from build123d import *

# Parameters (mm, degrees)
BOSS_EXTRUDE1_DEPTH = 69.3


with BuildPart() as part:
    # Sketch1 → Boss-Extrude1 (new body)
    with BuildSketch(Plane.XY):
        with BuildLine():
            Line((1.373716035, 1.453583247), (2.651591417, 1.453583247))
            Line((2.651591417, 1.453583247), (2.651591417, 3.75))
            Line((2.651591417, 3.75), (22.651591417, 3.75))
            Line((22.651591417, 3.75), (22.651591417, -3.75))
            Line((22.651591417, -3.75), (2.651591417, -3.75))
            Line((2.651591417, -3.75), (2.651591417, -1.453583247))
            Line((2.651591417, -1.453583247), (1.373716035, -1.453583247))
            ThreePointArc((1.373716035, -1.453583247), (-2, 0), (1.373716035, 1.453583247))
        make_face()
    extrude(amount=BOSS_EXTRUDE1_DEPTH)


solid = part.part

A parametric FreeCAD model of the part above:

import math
import FreeCAD as App
import Part
import Sketcher
from FreeCAD import Vector

doc = App.newDocument("Part")
body = doc.addObject("PartDesign::Body", "Body")

# Sketch on XY plane
sketch1 = body.newObject("Sketcher::SketchObject", "Sketch")
sketch1.AttachmentSupport = (doc.getObject("XY_Plane"), [""])
sketch1.MapMode = "FlatFace"
sketch1.addGeometry(Part.LineSegment(Vector(2.7, 1.5, 0), Vector(1.4, 1.5, 0)), False)
sketch1.addGeometry(Part.ArcOfCircle(Part.Circle(Vector(0, 0, 0), Vector(0, 0, 1), 2), math.radians(47), math.radians(313)), False)
sketch1.addGeometry(Part.LineSegment(Vector(1.4, -1.5, 0), Vector(2.7, -1.5, 0)), False)
sketch1.addGeometry(Part.LineSegment(Vector(2.7, -1.5, 0), Vector(2.7, -3.8, 0)), False)
sketch1.addGeometry(Part.LineSegment(Vector(2.7, -3.8, 0), Vector(22.7, -3.8, 0)), False)
sketch1.addGeometry(Part.LineSegment(Vector(22.7, -3.8, 0), Vector(22.7, 3.8, 0)), False)
sketch1.addGeometry(Part.LineSegment(Vector(22.7, 3.8, 0), Vector(2.7, 3.8, 0)), False)
sketch1.addGeometry(Part.LineSegment(Vector(2.7, 3.8, 0), Vector(2.7, 1.5, 0)), False)
sketch1.addConstraint(Sketcher.Constraint("Coincident", 0, 2, 1, 1))
sketch1.addConstraint(Sketcher.Constraint("Coincident", 1, 2, 2, 1))
sketch1.addConstraint(Sketcher.Constraint("Coincident", 2, 2, 3, 1))
sketch1.addConstraint(Sketcher.Constraint("Coincident", 3, 2, 4, 1))
sketch1.addConstraint(Sketcher.Constraint("Coincident", 4, 2, 5, 1))
sketch1.addConstraint(Sketcher.Constraint("Coincident", 5, 2, 6, 1))
sketch1.addConstraint(Sketcher.Constraint("Coincident", 6, 2, 7, 1))
sketch1.addConstraint(Sketcher.Constraint("Coincident", 7, 2, 0, 1))
sketch1.addConstraint(Sketcher.Constraint("Horizontal", 0))
sketch1.addConstraint(Sketcher.Constraint("Horizontal", 2))
sketch1.addConstraint(Sketcher.Constraint("Vertical", 3))
sketch1.addConstraint(Sketcher.Constraint("Horizontal", 4))
sketch1.addConstraint(Sketcher.Constraint("Vertical", 5))
sketch1.addConstraint(Sketcher.Constraint("Horizontal", 6))
sketch1.addConstraint(Sketcher.Constraint("Vertical", 7))
sketch1.addConstraint(Sketcher.Constraint("Coincident", 1, 3, -1, 1))
sketch1.addConstraint(Sketcher.Constraint("Symmetric", 3, 2, 6, 2, -1))
sketch1.addConstraint(Sketcher.Constraint("Vertical", 0, 2, 1, 2))
sketch1.addConstraint(Sketcher.Constraint("Radius", 1, 2.0))
sketch1.addConstraint(Sketcher.Constraint("DistanceX", 4, 1, 4, 2, 20.0))
sketch1.addConstraint(Sketcher.Constraint("DistanceY", 5, 1, 5, 2, 7.5))
sketch1.addConstraint(Sketcher.Constraint("DistanceX", 0, 2, 0, 1, 1.277875))
sketch1.addConstraint(Sketcher.Constraint("DistanceY", 3, 2, 3, 1, 2.296417))
pad1 = body.newObject("PartDesign::Pad", "Pad")
pad1.Profile = sketch1
pad1.Length = 69.3

doc.recompute()
